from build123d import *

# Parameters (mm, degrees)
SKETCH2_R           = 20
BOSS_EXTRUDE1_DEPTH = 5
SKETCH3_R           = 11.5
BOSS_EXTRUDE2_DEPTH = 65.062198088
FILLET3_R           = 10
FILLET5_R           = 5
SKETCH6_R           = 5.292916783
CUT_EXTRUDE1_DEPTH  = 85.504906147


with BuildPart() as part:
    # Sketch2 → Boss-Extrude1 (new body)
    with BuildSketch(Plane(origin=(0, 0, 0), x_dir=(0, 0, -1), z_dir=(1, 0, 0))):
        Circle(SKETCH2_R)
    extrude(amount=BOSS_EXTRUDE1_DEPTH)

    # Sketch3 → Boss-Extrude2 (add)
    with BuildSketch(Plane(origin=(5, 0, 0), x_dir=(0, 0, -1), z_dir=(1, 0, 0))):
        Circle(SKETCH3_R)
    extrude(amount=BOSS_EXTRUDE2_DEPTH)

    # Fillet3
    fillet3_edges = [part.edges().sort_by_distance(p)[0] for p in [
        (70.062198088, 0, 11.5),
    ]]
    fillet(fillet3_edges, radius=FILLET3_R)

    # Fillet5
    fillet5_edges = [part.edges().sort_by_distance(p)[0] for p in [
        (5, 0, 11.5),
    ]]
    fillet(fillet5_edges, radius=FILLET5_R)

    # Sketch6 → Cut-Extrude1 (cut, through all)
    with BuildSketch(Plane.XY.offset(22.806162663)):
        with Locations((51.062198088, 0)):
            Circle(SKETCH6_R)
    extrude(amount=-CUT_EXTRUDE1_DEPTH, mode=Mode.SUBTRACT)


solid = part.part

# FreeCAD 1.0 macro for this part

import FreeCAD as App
import Part
import Sketcher

V = App.Vector
Q = App.Units.Quantity


def edges_at(feature, points):
    """Names of the edges that pass closest to the given points."""
    edges = feature.Shape.Edges
    near = lambda p: min(range(len(edges)), key=lambda i: edges[i].distToShape(Part.Vertex(*p))[0])
    return sorted({f"Edge{near(p) + 1}" for p in points})

doc = App.newDocument("Part")
body = doc.addObject("PartDesign::Body", "Body")

# Sketch on YZ plane
sketch1 = doc.addObject("Sketcher::SketchObject", "Sketch")
body.addObject(sketch1)
sketch1.AttachmentSupport = (doc.YZ_Plane, [""])
sketch1.MapMode = "FlatFace"
sketch1.addGeometry(Part.Circle(V(0, 0, 0), V(0, 0, 1), 20), False)
sketch1.addConstraint([
    Sketcher.Constraint("Coincident", 0, 3, -1, 1),
    Sketcher.Constraint("Diameter", 0, Q("40 mm")),
])
pad1 = doc.addObject("PartDesign::Pad", "Pad")
body.addObject(pad1)
pad1.Profile = sketch1
pad1.Length = 5

# Sketch on YZ plane
sketch2 = doc.addObject("Sketcher::SketchObject", "Sketch001")
body.addObject(sketch2)
sketch2.AttachmentSupport = (doc.YZ_Plane, [""])
sketch2.MapMode = "FlatFace"
sketch2.AttachmentOffset = App.Placement(V(0, 0, 5), App.Rotation())
sketch2.addGeometry(Part.Circle(V(0, 0, 0), V(0, 0, 1), 11.5), False)
sketch2.addConstraint([
    Sketcher.Constraint("Coincident", 0, 3, -1, 1),
    Sketcher.Constraint("Diameter", 0, Q("23 mm")),
])
pad2 = doc.addObject("PartDesign::Pad", "Pad001")
body.addObject(pad2)
pad2.Profile = sketch2
pad2.Length = 65.062198
doc.recompute()

fillet = doc.addObject("PartDesign::Fillet", "Fillet")
body.addObject(fillet)
fillet.Base = (pad2, edges_at(pad2, [(70.062, 0, 11.5)]))
fillet.Radius = 10
doc.recompute()

fillet2 = doc.addObject("PartDesign::Fillet", "Fillet001")
body.addObject(fillet2)
fillet2.Base = (fillet, edges_at(fillet, [(5, 0, 11.5)]))
fillet2.Radius = 5

# Sketch on XY plane
sketch3 = doc.addObject("Sketcher::SketchObject", "Sketch002")
body.addObject(sketch3)
sketch3.AttachmentSupport = (doc.XY_Plane, [""])
sketch3.MapMode = "FlatFace"
sketch3.AttachmentOffset = App.Placement(V(0, 0, 22.806163), App.Rotation())
sketch3.addGeometry(Part.Circle(V(51.062198, 0, 0), V(0, 0, 1), 5.292917), False)
sketch3.addConstraint([
    Sketcher.Constraint("PointOnObject", 0, 3, -1),
    Sketcher.Constraint("Diameter", 0, Q("10.585834 mm")),
    Sketcher.Constraint("DistanceX", -1, 1, 0, 3, Q("51.062198 mm")),
])
pocket1 = doc.addObject("PartDesign::Pocket", "Pocket")
body.addObject(pocket1)
pocket1.Profile = sketch3
pocket1.Type = "ThroughAll"

doc.recompute()
